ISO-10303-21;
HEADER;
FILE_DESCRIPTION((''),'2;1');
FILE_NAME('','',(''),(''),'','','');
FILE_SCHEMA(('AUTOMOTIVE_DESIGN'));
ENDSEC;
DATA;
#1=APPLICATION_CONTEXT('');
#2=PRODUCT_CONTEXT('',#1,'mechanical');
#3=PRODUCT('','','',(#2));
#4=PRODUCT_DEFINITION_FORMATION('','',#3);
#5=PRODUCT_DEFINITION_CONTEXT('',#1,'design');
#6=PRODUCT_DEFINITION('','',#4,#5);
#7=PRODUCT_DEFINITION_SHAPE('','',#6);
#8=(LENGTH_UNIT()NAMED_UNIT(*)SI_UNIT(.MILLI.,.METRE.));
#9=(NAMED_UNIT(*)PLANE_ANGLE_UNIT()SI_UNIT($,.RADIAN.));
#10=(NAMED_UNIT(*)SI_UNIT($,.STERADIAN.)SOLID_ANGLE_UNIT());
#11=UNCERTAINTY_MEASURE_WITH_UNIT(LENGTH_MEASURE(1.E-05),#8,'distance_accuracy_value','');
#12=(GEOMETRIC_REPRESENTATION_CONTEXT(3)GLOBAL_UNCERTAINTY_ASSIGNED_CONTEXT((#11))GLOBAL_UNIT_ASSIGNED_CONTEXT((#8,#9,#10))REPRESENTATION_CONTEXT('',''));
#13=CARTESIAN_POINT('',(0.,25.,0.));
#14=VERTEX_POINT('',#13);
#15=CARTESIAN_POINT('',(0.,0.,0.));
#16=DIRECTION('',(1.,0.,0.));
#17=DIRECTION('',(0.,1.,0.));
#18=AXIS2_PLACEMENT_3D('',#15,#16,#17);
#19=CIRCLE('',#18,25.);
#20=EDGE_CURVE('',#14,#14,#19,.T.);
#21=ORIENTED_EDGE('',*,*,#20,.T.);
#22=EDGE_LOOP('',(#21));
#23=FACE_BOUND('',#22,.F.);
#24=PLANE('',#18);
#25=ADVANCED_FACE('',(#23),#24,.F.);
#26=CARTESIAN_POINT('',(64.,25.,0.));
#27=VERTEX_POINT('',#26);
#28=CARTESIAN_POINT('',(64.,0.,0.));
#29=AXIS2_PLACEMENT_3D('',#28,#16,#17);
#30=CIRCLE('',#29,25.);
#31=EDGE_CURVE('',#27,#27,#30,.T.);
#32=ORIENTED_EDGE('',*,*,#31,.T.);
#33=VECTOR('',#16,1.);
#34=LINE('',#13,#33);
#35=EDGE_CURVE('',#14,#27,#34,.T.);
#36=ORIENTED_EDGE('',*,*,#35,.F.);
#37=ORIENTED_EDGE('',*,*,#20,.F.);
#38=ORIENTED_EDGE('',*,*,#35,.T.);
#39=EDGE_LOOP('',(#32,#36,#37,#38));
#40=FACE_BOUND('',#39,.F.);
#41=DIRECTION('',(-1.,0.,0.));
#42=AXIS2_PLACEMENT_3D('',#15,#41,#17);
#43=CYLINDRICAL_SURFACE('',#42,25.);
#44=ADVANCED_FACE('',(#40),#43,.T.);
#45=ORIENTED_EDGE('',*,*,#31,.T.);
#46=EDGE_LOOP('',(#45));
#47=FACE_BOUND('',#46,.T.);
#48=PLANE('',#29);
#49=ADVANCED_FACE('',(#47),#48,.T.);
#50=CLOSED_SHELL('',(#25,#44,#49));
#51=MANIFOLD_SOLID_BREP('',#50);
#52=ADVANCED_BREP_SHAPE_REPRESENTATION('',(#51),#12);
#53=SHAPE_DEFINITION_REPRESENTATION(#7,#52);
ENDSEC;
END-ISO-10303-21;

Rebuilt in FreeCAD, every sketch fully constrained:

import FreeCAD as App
import Part
import Sketcher

V = App.Vector
Q = App.Units.Quantity

doc = App.newDocument("Part")
body = doc.addObject("PartDesign::Body", "Body")

# Sketch on YZ plane
sketch1 = doc.addObject("Sketcher::SketchObject", "Sketch")
body.addObject(sketch1)
sketch1.AttachmentSupport = (doc.YZ_Plane, [""])
sketch1.MapMode = "FlatFace"
sketch1.addGeometry(Part.Circle(V(0, 0, 0), V(0, 0, 1), 25), False)
sketch1.addConstraint(Sketcher.Constraint("Coincident", 0, 3, -1, 1))
sketch1.addConstraint(Sketcher.Constraint("Diameter", 0, Q("50 mm")))
pad1 = doc.addObject("PartDesign::Pad", "Pad")
body.addObject(pad1)
pad1.Profile = sketch1
pad1.Length = 64

doc.recompute()
